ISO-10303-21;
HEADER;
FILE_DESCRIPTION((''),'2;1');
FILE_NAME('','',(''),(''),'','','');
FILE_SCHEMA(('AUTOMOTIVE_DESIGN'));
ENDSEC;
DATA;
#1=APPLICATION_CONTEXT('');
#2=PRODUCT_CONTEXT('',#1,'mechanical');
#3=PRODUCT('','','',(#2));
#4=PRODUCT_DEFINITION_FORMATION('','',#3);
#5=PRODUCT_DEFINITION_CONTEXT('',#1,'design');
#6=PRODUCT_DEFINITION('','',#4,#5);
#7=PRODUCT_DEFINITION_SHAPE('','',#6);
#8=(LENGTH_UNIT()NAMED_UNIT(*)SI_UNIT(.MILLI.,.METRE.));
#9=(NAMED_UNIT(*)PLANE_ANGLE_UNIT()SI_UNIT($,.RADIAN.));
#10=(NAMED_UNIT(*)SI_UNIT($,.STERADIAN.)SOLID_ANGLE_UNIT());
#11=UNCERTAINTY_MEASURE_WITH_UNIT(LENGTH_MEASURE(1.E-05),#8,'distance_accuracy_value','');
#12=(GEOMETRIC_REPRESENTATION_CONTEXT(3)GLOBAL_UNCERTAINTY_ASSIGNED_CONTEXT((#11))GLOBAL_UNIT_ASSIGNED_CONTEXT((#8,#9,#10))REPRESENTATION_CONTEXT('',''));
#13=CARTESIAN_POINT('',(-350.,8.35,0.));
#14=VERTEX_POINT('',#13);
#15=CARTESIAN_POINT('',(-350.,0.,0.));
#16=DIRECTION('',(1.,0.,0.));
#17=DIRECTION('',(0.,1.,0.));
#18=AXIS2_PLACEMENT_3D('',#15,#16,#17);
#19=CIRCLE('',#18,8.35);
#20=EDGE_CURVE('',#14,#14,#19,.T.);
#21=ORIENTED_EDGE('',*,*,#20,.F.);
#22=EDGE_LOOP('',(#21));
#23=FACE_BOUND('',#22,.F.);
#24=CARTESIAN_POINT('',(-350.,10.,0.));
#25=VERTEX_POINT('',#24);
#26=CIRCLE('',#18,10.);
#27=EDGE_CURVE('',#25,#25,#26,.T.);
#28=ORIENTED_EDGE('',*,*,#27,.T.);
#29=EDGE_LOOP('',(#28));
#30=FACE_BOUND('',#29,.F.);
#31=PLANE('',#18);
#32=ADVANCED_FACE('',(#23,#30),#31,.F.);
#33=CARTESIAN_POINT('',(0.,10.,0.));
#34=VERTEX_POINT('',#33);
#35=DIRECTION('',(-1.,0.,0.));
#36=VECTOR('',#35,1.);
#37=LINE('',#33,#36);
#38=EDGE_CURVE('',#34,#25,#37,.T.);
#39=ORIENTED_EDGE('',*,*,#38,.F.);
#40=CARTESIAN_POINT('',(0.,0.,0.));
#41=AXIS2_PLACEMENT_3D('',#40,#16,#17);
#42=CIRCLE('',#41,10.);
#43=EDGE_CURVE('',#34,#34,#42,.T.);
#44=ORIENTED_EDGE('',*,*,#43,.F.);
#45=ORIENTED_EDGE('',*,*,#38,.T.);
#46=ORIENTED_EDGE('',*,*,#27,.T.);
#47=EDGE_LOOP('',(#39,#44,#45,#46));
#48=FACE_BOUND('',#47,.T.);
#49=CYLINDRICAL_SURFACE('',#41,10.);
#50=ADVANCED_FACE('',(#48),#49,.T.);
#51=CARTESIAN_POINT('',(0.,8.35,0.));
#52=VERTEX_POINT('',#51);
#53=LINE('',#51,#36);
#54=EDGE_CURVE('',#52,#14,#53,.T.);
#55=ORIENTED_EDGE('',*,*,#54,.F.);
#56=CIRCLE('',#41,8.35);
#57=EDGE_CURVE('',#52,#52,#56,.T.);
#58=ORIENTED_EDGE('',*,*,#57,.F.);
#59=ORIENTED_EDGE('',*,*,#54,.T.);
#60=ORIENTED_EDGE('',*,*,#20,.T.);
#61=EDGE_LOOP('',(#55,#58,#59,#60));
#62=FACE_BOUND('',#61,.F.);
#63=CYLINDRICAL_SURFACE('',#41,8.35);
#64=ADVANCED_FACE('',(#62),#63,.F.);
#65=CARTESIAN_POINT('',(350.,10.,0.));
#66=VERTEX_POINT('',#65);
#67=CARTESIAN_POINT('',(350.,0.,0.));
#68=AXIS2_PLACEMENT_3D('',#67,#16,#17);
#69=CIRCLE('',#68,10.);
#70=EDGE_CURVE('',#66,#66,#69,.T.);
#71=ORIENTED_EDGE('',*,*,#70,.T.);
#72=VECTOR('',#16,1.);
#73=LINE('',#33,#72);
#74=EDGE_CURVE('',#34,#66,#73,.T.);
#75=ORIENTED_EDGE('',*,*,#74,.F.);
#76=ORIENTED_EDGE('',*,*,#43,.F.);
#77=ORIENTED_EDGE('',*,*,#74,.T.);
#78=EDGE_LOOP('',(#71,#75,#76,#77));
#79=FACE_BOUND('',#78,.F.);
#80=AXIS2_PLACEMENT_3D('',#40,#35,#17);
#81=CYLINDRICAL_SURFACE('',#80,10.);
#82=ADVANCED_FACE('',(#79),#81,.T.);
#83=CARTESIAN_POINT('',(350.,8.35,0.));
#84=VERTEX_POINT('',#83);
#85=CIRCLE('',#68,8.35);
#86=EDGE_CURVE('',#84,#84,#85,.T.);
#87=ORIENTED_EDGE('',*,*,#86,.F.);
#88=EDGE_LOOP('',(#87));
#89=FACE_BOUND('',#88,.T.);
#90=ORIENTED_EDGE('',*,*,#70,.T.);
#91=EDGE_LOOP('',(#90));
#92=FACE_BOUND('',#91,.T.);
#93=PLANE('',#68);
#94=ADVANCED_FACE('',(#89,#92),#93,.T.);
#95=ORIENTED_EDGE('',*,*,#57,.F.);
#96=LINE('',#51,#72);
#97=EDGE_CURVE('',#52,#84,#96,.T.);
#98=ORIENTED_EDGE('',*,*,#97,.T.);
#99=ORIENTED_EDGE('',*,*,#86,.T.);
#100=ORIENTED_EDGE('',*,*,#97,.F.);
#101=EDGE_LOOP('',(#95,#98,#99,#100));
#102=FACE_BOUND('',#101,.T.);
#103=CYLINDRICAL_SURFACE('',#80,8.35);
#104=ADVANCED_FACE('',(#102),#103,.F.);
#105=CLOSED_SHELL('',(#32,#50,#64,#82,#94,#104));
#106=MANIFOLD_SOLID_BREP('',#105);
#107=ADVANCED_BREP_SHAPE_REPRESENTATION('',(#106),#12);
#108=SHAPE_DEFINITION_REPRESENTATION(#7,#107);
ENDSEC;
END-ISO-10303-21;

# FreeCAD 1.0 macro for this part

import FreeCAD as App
import Part
import Sketcher

V = App.Vector

doc = App.newDocument("Part")
body = doc.addObject("PartDesign::Body", "Body")

# Sketch on YZ plane
sketch1 = body.newObject("Sketcher::SketchObject", "Sketch")
sketch1.AttachmentSupport = (doc.getObject("YZ_Plane"), [""])
sketch1.MapMode = "FlatFace"
sketch1.addGeometry(Part.Circle(V(0, 0, 0), V(0, 0, 1), 10), False)
sketch1.addGeometry(Part.Circle(V(0, 0, 0), V(0, 0, 1), 8.35), False)
sketch1.addConstraint(Sketcher.Constraint("Coincident", 0, 3, -1, 1))
sketch1.addConstraint(Sketcher.Constraint("Coincident", 1, 3, -1, 1))
sketch1.addConstraint(Sketcher.Constraint("Diameter", 0, 20.0))
sketch1.addConstraint(Sketcher.Constraint("Diameter", 1, 16.7))
pad1 = body.newObject("PartDesign::Pad", "Pad")
pad1.Profile = sketch1
pad1.Length = 700
pad1.Midplane = True

doc.recompute()
